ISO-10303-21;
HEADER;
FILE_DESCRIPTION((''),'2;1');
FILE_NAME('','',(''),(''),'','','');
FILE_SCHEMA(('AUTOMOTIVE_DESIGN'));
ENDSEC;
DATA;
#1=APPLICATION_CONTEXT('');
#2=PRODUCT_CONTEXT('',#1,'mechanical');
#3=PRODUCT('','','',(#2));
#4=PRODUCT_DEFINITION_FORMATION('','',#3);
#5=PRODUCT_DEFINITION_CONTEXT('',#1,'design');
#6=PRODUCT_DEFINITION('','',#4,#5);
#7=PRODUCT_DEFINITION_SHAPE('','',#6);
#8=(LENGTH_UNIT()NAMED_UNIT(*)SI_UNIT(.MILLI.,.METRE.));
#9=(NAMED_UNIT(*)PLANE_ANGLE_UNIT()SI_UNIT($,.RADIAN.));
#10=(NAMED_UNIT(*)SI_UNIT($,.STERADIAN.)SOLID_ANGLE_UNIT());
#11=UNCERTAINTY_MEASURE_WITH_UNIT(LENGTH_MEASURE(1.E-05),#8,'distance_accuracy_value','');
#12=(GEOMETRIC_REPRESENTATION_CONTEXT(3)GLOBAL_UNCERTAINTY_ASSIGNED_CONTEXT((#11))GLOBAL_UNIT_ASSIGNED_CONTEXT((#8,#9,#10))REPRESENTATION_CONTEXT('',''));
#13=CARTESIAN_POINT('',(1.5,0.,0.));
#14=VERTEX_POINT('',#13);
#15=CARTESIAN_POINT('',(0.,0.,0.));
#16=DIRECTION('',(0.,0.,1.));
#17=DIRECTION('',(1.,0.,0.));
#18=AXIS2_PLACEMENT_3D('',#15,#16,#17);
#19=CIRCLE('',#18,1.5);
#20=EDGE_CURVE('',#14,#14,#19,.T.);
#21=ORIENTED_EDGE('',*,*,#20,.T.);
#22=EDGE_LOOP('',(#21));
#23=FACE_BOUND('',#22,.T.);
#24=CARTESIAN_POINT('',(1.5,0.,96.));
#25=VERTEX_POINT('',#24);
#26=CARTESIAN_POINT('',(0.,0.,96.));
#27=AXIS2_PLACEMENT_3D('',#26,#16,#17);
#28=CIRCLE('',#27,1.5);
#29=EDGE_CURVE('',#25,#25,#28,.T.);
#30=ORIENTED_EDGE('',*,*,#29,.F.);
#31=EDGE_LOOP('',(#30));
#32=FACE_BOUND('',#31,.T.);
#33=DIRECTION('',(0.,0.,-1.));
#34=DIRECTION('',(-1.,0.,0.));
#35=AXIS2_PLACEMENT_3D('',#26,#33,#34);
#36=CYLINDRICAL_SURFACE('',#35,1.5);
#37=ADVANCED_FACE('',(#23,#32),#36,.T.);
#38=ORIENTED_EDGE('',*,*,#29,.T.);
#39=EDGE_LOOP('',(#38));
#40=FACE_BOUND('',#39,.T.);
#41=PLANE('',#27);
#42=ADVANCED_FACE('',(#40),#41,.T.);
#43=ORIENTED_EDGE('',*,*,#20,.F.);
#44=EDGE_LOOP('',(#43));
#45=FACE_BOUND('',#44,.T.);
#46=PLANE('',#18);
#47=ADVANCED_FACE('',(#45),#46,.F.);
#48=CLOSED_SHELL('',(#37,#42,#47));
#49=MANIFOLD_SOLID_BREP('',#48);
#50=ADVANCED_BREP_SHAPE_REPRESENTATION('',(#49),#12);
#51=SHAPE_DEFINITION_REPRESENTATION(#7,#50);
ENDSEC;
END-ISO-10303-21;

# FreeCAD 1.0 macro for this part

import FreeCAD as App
import Part
import Sketcher

doc = App.newDocument("Part")
params = doc.addObject("Spreadsheet::Sheet", "Params")
for row, (alias, value) in enumerate([
    ("sketch1_diameter", "3 mm"),
    ("pad1_length", "96 mm"),
], start=1):
    params.set(f"A{row}", alias)
    params.set(f"B{row}", "=" + value)
    params.setAlias(f"B{row}", alias)

body = doc.addObject("PartDesign::Body", "Body")

sketch1 = body.newObject("Sketcher::SketchObject", "Sketch")
sketch1.AttachmentSupport = (doc.getObject("XY_Plane"), [""])
sketch1.MapMode = "FlatFace"
sketch1.addGeometry(Part.Circle(App.Vector(0, 0, 0), App.Vector(0, 0, 1), 1.5), False)
sketch1.addConstraint([
    Sketcher.Constraint("Coincident", 0, 3, -1, 1),
    Sketcher.Constraint("Diameter", 0, 3.0),
])
sketch1.setExpression("Constraints[1]", "Params.sketch1_diameter")
pad1 = body.newObject("PartDesign::Pad", "Pad")
pad1.Profile = sketch1
pad1.setExpression("Length", "Params.pad1_length")

doc.recompute()
